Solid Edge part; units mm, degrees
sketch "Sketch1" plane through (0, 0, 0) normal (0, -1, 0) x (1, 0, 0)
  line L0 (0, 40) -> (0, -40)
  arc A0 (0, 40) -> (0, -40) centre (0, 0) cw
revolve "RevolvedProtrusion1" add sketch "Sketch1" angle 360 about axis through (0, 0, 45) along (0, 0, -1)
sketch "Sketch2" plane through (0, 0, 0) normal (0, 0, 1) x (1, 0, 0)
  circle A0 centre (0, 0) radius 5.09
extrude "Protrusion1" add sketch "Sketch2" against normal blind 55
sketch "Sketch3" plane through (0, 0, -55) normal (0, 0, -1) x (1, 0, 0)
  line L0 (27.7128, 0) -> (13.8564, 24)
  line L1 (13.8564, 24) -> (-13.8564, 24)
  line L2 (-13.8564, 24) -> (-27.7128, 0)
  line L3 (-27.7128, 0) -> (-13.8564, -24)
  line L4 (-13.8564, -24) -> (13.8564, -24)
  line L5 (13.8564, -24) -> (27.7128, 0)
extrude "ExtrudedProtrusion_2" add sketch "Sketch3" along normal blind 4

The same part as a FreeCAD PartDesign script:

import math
import FreeCAD as App
import Part
import Sketcher
Q = App.Units.Quantity


def add_polygon(sketch, points):
    """Adds a closed chain of lines whose ends are joined by coincident constraints."""
    first, n = sketch.GeometryCount, len(points)
    for a, b in zip(points, points[1:] + points[:1]):
        sketch.addGeometry(Part.LineSegment(App.Vector(*a, 0), App.Vector(*b, 0)), False)
    for i in range(n):
        sketch.addConstraint(Sketcher.Constraint("Coincident", first + i, 2, first + (i + 1) % n, 1))

doc = App.newDocument("Part")
params = doc.addObject("Spreadsheet::Sheet", "Params")
for row, (alias, value) in enumerate([
    ("sketch1_radius", "40 mm"),
    ("revolution_angle", "360 deg"),
    ("sketch2_diameter", "10.18 mm"),
    ("pad1_length", "55 mm"),
    ("pad2_length", "4 mm"),
], start=1):
    params.set(f"A{row}", alias)
    params.set(f"B{row}", "=" + value)
    params.setAlias(f"B{row}", alias)

body = doc.addObject("PartDesign::Body", "Body")

sketch1 = body.newObject("Sketcher::SketchObject", "Sketch")
sketch1.AttachmentSupport = (doc.getObject("XZ_Plane"), [""])
sketch1.MapMode = "FlatFace"
sketch1.addGeometry([
    Part.ArcOfCircle(Part.Circle(App.Vector(0, 0, 0), App.Vector(0, 0, 1), 40), math.radians(-90), math.radians(90)),
    Part.LineSegment(App.Vector(0, 40, 0), App.Vector(0, -40, 0)),
], False)
sketch1.addConstraint([
    Sketcher.Constraint("Coincident", 0, 1, 1, 2),
    Sketcher.Constraint("Coincident", 1, 1, 0, 2),
    Sketcher.Constraint("Vertical", 1),
    Sketcher.Constraint("Coincident", 0, 3, -1, 1),
    Sketcher.Constraint("PointOnObject", 0, 1, -2),
    Sketcher.Constraint("Radius", 0, 40.0),
])
sketch1.setExpression("Constraints[5]", "Params.sketch1_radius")
revolution = body.newObject("PartDesign::Revolution", "Revolution")
revolution.Profile = sketch1
revolution.ReferenceAxis = (sketch1, ["V_Axis"])
revolution.setExpression("Angle", "Params.revolution_angle")

sketch2 = body.newObject("Sketcher::SketchObject", "Sketch001")
sketch2.AttachmentSupport = (doc.getObject("XY_Plane"), [""])
sketch2.MapMode = "FlatFace"
sketch2.addGeometry(Part.Circle(App.Vector(0, 0, 0), App.Vector(0, 0, 1), 5), False)
sketch2.addConstraint([
    Sketcher.Constraint("Coincident", 0, 3, -1, 1),
    Sketcher.Constraint("Diameter", 0, 10.18),
])
sketch2.setExpression("Constraints[1]", "Params.sketch2_diameter")
pad1 = body.newObject("PartDesign::Pad", "Pad")
pad1.Profile = sketch2
pad1.setExpression("Length", "Params.pad1_length")
pad1.Reversed = True

sketch3 = body.newObject("Sketcher::SketchObject", "Sketch002")
sketch3.AttachmentSupport = (doc.getObject("XY_Plane"), [""])
sketch3.MapMode = "FlatFace"
sketch3.AttachmentOffset = App.Placement(App.Vector(0, 0, -55), App.Rotation())
add_polygon(sketch3, [(14, 24), (28, 0), (14, -24), (-14, -24), (-28, 0), (-14, 24)])
sketch3.addConstraint([
    Sketcher.Constraint("Horizontal", 2),
    Sketcher.Constraint("Horizontal", 5),
    Sketcher.Constraint("Symmetric", 0, 2, 3, 2, -1, 1),
    Sketcher.Constraint("Symmetric", 1, 2, 4, 2, -1, 1),
    Sketcher.Constraint("PointOnObject", 0, 2, -1),
    Sketcher.Constraint("Parallel", 0, 3),
    Sketcher.Constraint("Vertical", 2, 2, 4, 2),
    Sketcher.Constraint("Angle", 0, Q("-60 deg")),
    Sketcher.Constraint("DistanceY", 1, 2, -1, 1, 24.0),
    Sketcher.Constraint("DistanceX", 2, 2, 2, 1, 27.7128),
])
pad2 = body.newObject("PartDesign::Pad", "Pad001")
pad2.Profile = sketch3
pad2.setExpression("Length", "Params.pad2_length")
pad2.Reversed = True

doc.recompute()
